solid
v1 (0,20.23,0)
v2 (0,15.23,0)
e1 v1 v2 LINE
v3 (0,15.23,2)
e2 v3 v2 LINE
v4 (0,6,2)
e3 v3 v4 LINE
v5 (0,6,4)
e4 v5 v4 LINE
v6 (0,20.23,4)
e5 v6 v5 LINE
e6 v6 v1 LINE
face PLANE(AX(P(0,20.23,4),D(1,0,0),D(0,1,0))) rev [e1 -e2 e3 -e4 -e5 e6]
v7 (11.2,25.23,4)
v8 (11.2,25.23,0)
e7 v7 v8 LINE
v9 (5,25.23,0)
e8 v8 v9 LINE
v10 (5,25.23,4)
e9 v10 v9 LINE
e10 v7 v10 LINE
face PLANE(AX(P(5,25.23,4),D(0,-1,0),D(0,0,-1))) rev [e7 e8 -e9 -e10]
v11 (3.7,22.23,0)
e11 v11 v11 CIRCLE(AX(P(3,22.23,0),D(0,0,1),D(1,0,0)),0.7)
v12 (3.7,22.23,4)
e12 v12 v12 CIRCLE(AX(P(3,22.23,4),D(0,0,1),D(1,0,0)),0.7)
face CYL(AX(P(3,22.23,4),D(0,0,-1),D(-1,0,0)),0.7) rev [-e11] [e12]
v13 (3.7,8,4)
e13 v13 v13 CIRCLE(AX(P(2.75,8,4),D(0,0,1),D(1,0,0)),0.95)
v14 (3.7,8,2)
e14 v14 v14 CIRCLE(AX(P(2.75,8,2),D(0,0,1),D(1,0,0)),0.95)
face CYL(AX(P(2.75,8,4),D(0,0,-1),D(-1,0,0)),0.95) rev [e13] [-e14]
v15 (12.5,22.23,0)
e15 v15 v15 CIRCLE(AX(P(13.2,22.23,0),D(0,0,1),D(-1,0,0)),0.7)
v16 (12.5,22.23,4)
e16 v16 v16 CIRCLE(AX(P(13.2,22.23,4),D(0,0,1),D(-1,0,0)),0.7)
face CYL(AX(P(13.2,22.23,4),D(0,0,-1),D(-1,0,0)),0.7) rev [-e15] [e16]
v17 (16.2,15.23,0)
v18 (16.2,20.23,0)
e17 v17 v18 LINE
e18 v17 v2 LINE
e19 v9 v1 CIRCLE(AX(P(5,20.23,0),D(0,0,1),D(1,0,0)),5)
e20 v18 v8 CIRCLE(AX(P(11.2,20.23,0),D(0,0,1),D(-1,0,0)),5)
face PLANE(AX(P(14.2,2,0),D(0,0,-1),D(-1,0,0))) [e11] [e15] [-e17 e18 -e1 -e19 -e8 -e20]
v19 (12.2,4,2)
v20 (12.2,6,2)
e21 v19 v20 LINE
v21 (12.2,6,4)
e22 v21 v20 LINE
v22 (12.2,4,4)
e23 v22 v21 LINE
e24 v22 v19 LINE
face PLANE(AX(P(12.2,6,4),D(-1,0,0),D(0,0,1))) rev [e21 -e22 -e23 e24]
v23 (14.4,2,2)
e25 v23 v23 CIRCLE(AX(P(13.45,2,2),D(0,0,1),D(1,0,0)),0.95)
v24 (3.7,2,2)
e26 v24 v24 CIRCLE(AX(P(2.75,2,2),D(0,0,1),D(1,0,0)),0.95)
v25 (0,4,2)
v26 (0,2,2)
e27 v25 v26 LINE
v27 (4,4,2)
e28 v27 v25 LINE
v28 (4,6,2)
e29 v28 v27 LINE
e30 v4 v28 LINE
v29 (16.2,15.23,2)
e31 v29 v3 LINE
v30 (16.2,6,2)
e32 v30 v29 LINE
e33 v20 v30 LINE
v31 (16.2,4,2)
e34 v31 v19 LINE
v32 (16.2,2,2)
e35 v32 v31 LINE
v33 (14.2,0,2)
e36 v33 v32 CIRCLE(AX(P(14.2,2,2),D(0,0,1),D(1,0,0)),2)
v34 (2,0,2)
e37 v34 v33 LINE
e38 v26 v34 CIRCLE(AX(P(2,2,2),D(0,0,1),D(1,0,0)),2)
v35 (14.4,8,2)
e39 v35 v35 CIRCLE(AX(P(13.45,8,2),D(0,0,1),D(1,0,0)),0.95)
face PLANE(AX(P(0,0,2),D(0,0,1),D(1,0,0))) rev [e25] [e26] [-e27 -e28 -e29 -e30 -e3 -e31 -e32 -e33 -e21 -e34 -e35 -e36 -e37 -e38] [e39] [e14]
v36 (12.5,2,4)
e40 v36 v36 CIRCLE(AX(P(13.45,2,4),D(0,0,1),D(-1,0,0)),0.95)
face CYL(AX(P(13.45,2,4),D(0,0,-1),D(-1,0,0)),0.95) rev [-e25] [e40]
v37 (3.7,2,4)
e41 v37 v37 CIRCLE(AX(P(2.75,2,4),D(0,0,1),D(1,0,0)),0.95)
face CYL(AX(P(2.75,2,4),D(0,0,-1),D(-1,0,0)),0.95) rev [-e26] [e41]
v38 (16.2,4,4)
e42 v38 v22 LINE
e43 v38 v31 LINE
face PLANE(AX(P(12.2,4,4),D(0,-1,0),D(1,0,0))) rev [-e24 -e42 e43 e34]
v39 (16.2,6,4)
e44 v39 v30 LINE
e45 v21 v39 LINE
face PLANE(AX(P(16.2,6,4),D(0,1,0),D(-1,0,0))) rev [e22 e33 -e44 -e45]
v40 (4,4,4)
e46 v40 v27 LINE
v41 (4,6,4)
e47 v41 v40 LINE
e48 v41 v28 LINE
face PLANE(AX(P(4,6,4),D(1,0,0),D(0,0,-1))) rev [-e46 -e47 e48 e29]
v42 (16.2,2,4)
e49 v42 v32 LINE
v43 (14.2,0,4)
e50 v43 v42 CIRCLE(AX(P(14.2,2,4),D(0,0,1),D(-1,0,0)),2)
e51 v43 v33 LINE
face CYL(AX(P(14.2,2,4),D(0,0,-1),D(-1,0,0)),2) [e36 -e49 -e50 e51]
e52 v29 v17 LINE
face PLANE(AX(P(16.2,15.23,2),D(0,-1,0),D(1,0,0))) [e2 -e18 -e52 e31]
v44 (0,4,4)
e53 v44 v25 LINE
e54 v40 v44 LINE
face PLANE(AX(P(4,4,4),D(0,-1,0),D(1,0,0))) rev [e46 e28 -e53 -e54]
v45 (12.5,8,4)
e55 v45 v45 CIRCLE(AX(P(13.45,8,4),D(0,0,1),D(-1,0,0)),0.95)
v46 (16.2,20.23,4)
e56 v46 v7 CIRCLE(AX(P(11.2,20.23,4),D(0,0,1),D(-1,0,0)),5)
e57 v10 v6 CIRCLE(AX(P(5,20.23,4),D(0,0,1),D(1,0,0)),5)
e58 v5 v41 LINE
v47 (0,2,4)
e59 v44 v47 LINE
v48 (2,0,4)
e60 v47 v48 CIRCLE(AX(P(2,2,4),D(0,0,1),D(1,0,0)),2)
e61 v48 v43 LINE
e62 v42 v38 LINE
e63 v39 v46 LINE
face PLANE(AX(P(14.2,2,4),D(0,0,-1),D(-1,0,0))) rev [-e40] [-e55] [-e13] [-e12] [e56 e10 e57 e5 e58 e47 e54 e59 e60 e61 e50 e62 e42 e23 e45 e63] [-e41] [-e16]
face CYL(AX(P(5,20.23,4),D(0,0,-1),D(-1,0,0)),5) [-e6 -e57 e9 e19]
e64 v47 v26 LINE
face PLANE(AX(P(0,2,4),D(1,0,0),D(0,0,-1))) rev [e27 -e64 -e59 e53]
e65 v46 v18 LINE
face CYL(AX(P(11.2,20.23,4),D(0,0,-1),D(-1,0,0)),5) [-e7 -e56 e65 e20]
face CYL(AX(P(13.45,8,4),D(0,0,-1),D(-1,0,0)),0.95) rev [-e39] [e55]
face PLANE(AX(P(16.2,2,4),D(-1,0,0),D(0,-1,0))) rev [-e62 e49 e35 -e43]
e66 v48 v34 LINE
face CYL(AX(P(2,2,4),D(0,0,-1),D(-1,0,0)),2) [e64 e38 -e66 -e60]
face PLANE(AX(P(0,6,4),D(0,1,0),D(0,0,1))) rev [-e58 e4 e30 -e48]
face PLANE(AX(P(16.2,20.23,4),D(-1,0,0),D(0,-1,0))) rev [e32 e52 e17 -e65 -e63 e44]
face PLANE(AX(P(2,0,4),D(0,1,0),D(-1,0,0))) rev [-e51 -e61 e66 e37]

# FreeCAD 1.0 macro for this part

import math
import FreeCAD as App
import Part
import Sketcher

V = App.Vector

doc = App.newDocument("Part")
params = doc.addObject("Spreadsheet::Sheet", "Params")
for row, (alias, value) in enumerate([
    ("sketch1_radius", "2 mm"),
    ("sketch1_radius2", "5 mm"),
    ("sketch1_diameter", "1.9 mm"),
    ("sketch1_diameter2", "1.4 mm"),
    ("sketch1_width", "4 mm"),
    ("pad1_length", "4 mm"),
    ("sketch2_width", "16.2 mm"),
    ("sketch2_height", "15.23 mm"),
    ("pocket1_length", "2 mm"),
], start=1):
    params.set(f"A{row}", alias)
    params.set(f"B{row}", "=" + value)
    params.setAlias(f"B{row}", alias)

body = doc.addObject("PartDesign::Body", "Body")

# Sketch on XY plane
sketch1 = body.newObject("Sketcher::SketchObject", "Sketch")
sketch1.AttachmentSupport = (doc.getObject("XY_Plane"), [""])
sketch1.MapMode = "FlatFace"
sketch1.addGeometry([
    Part.LineSegment(V(2, 0, 0), V(14.2, 0, 0)),  # 0
    Part.ArcOfCircle(Part.Circle(V(14.2, 2, 0), V(0, 0, 1), 2), math.radians(-90), math.radians(0)),  # 1
    Part.LineSegment(V(16.2, 2, 0), V(16.2, 4, 0)),  # 2
    Part.LineSegment(V(16.2, 4, 0), V(12.2, 4, 0)),  # 3
    Part.LineSegment(V(12.2, 4, 0), V(12.2, 6, 0)),  # 4
    Part.LineSegment(V(12.2, 6, 0), V(16.2, 6, 0)),  # 5
    Part.LineSegment(V(16.2, 6, 0), V(16.2, 20.23, 0)),  # 6
    Part.ArcOfCircle(Part.Circle(V(11.2, 20.23, 0), V(0, 0, 1), 5), math.radians(0), math.radians(90)),  # 7
    Part.LineSegment(V(11.2, 25.23, 0), V(5, 25.23, 0)),  # 8
    Part.ArcOfCircle(Part.Circle(V(5, 20.23, 0), V(0, 0, 1), 5), math.radians(90), math.radians(180)),  # 9
    Part.LineSegment(V(0, 20.23, 0), V(0, 6, 0)),  # 10
    Part.LineSegment(V(0, 6, 0), V(4, 6, 0)),  # 11
    Part.LineSegment(V(4, 6, 0), V(4, 4, 0)),  # 12
    Part.LineSegment(V(4, 4, 0), V(0, 4, 0)),  # 13
    Part.LineSegment(V(0, 4, 0), V(0, 2, 0)),  # 14
    Part.ArcOfCircle(Part.Circle(V(2, 2, 0), V(0, 0, 1), 2), math.radians(-180), math.radians(-90)),  # 15
    Part.Circle(V(2.75, 2, 0), V(0, 0, 1), 0.95),  # 16
    Part.Circle(V(2.75, 8, 0), V(0, 0, 1), 0.95),  # 17
    Part.Circle(V(13.45, 2, 0), V(0, 0, 1), 0.95),  # 18
    Part.Circle(V(13.45, 8, 0), V(0, 0, 1), 0.95),  # 19
    Part.Circle(V(3, 22.23, 0), V(0, 0, 1), 0.7),  # 20
    Part.Circle(V(13.2, 22.23, 0), V(0, 0, 1), 0.7),  # 21
], False)
sketch1.addConstraint([
    Sketcher.Constraint("Tangent", 0, 2, 1, 1),
    Sketcher.Constraint("Tangent", 1, 2, 2, 1),
    Sketcher.Constraint("Coincident", 2, 2, 3, 1),
    Sketcher.Constraint("Coincident", 3, 2, 4, 1),
    Sketcher.Constraint("Coincident", 4, 2, 5, 1),
    Sketcher.Constraint("Coincident", 5, 2, 6, 1),
    Sketcher.Constraint("Tangent", 6, 2, 7, 1),
    Sketcher.Constraint("Tangent", 7, 2, 8, 1),
    Sketcher.Constraint("Tangent", 8, 2, 9, 1),
    Sketcher.Constraint("Tangent", 9, 2, 10, 1),
    Sketcher.Constraint("Coincident", 10, 2, 11, 1),
    Sketcher.Constraint("Coincident", 11, 2, 12, 1),
    Sketcher.Constraint("Coincident", 12, 2, 13, 1),
    Sketcher.Constraint("Coincident", 13, 2, 14, 1),
    Sketcher.Constraint("Tangent", 14, 2, 15, 1),
    Sketcher.Constraint("Tangent", 15, 2, 0, 1),
    Sketcher.Constraint("Horizontal", 0),
    Sketcher.Constraint("Vertical", 2),
    Sketcher.Constraint("Horizontal", 3),
    Sketcher.Constraint("Vertical", 4),
    Sketcher.Constraint("Horizontal", 5),
    Sketcher.Constraint("Vertical", 6),
    Sketcher.Constraint("Horizontal", 8),
    Sketcher.Constraint("Vertical", 10),
    Sketcher.Constraint("Horizontal", 11),
    Sketcher.Constraint("Vertical", 12),
    Sketcher.Constraint("Horizontal", 13),
    Sketcher.Constraint("Vertical", 14),
    Sketcher.Constraint("Equal", 7, 9),
    Sketcher.Constraint("Equal", 1, 15),
    Sketcher.Constraint("Equal", 16, 17),
    Sketcher.Constraint("Equal", 17, 18),
    Sketcher.Constraint("Equal", 18, 19),
    Sketcher.Constraint("Equal", 20, 21),
    Sketcher.Constraint("PointOnObject", 0, 2, -1),
    Sketcher.Constraint("PointOnObject", 9, 2, -2),
    Sketcher.Constraint("PointOnObject", 13, 2, -2),
    Sketcher.Constraint("Horizontal", 15, 3, 16, 3),
    Sketcher.Constraint("Horizontal", 16, 3, 18, 3),
    Sketcher.Constraint("Horizontal", 17, 3, 19, 3),
    Sketcher.Constraint("Horizontal", 20, 3, 21, 3),
    Sketcher.Constraint("Horizontal", 5, 2, 10, 2),
    Sketcher.Constraint("Horizontal", 3, 2, 12, 2),
    Sketcher.Constraint("Vertical", 16, 3, 17, 3),
    Sketcher.Constraint("Vertical", 18, 3, 19, 3),
    Sketcher.Constraint("Vertical", 2, 2, 5, 2),
    Sketcher.Constraint("Equal", 5, 11),
    Sketcher.Constraint("Equal", 2, 4),
    Sketcher.Constraint("Radius", 1, 2.0),
    Sketcher.Constraint("Radius", 7, 5.0),
    Sketcher.Constraint("Diameter", 16, 1.9),
    Sketcher.Constraint("Diameter", 20, 1.4),
    Sketcher.Constraint("DistanceX", 3, 2, 3, 1, 4.0),
    Sketcher.Constraint("DistanceY", 2, 1, 2, 2, 2.0),
    Sketcher.Constraint("DistanceX", 0, 1, 0, 2, 12.2),
    Sketcher.Constraint("DistanceY", -1, 1, 17, 3, 8.0),
    Sketcher.Constraint("DistanceX", -1, 1, 20, 3, 3.0),
    Sketcher.Constraint("DistanceY", 9, 3, 20, 3, 2.0),
    Sketcher.Constraint("DistanceX", 7, 3, 21, 3, 2.0),
    Sketcher.Constraint("DistanceY", 6, 1, 6, 2, 14.23),
    Sketcher.Constraint("DistanceX", 16, 3, 18, 3, 10.7),
    Sketcher.Constraint("DistanceX", -1, 1, 16, 3, 2.75),
])
sketch1.setExpression("Constraints[48]", "Params.sketch1_radius")
sketch1.setExpression("Constraints[49]", "Params.sketch1_radius2")
sketch1.setExpression("Constraints[50]", "Params.sketch1_diameter")
sketch1.setExpression("Constraints[51]", "Params.sketch1_diameter2")
sketch1.setExpression("Constraints[52]", "Params.sketch1_width")
pad1 = body.newObject("PartDesign::Pad", "Pad")
pad1.Profile = sketch1
pad1.setExpression("Length", "Params.pad1_length")

# Sketch on XY plane
sketch2 = body.newObject("Sketcher::SketchObject", "Sketch001")
sketch2.AttachmentSupport = (doc.getObject("XY_Plane"), [""])
sketch2.MapMode = "FlatFace"
sketch2.addGeometry([
    Part.LineSegment(V(0, 15.23, 0), V(0, 0, 0)),
    Part.LineSegment(V(0, 0, 0), V(16.2, 0, 0)),
    Part.LineSegment(V(16.2, 0, 0), V(16.2, 15.23, 0)),
    Part.LineSegment(V(16.2, 15.23, 0), V(0, 15.23, 0)),
], False)
sketch2.addConstraint([
    Sketcher.Constraint("Coincident", 0, 2, 1, 1),
    Sketcher.Constraint("Coincident", 1, 2, 2, 1),
    Sketcher.Constraint("Coincident", 2, 2, 3, 1),
    Sketcher.Constraint("Coincident", 3, 2, 0, 1),
    Sketcher.Constraint("Vertical", 0),
    Sketcher.Constraint("Horizontal", 1),
    Sketcher.Constraint("Vertical", 2),
    Sketcher.Constraint("Horizontal", 3),
    Sketcher.Constraint("Coincident", 0, 2, -1, 1),
    Sketcher.Constraint("DistanceX", 1, 1, 1, 2, 16.2),
    Sketcher.Constraint("DistanceY", 0, 2, 0, 1, 15.23),
])
sketch2.setExpression("Constraints[9]", "Params.sketch2_width")
sketch2.setExpression("Constraints[10]", "Params.sketch2_height")
pocket1 = body.newObject("PartDesign::Pocket", "Pocket")
pocket1.Profile = sketch2
pocket1.setExpression("Length", "Params.pocket1_length")
pocket1.Reversed = True

doc.recompute()
